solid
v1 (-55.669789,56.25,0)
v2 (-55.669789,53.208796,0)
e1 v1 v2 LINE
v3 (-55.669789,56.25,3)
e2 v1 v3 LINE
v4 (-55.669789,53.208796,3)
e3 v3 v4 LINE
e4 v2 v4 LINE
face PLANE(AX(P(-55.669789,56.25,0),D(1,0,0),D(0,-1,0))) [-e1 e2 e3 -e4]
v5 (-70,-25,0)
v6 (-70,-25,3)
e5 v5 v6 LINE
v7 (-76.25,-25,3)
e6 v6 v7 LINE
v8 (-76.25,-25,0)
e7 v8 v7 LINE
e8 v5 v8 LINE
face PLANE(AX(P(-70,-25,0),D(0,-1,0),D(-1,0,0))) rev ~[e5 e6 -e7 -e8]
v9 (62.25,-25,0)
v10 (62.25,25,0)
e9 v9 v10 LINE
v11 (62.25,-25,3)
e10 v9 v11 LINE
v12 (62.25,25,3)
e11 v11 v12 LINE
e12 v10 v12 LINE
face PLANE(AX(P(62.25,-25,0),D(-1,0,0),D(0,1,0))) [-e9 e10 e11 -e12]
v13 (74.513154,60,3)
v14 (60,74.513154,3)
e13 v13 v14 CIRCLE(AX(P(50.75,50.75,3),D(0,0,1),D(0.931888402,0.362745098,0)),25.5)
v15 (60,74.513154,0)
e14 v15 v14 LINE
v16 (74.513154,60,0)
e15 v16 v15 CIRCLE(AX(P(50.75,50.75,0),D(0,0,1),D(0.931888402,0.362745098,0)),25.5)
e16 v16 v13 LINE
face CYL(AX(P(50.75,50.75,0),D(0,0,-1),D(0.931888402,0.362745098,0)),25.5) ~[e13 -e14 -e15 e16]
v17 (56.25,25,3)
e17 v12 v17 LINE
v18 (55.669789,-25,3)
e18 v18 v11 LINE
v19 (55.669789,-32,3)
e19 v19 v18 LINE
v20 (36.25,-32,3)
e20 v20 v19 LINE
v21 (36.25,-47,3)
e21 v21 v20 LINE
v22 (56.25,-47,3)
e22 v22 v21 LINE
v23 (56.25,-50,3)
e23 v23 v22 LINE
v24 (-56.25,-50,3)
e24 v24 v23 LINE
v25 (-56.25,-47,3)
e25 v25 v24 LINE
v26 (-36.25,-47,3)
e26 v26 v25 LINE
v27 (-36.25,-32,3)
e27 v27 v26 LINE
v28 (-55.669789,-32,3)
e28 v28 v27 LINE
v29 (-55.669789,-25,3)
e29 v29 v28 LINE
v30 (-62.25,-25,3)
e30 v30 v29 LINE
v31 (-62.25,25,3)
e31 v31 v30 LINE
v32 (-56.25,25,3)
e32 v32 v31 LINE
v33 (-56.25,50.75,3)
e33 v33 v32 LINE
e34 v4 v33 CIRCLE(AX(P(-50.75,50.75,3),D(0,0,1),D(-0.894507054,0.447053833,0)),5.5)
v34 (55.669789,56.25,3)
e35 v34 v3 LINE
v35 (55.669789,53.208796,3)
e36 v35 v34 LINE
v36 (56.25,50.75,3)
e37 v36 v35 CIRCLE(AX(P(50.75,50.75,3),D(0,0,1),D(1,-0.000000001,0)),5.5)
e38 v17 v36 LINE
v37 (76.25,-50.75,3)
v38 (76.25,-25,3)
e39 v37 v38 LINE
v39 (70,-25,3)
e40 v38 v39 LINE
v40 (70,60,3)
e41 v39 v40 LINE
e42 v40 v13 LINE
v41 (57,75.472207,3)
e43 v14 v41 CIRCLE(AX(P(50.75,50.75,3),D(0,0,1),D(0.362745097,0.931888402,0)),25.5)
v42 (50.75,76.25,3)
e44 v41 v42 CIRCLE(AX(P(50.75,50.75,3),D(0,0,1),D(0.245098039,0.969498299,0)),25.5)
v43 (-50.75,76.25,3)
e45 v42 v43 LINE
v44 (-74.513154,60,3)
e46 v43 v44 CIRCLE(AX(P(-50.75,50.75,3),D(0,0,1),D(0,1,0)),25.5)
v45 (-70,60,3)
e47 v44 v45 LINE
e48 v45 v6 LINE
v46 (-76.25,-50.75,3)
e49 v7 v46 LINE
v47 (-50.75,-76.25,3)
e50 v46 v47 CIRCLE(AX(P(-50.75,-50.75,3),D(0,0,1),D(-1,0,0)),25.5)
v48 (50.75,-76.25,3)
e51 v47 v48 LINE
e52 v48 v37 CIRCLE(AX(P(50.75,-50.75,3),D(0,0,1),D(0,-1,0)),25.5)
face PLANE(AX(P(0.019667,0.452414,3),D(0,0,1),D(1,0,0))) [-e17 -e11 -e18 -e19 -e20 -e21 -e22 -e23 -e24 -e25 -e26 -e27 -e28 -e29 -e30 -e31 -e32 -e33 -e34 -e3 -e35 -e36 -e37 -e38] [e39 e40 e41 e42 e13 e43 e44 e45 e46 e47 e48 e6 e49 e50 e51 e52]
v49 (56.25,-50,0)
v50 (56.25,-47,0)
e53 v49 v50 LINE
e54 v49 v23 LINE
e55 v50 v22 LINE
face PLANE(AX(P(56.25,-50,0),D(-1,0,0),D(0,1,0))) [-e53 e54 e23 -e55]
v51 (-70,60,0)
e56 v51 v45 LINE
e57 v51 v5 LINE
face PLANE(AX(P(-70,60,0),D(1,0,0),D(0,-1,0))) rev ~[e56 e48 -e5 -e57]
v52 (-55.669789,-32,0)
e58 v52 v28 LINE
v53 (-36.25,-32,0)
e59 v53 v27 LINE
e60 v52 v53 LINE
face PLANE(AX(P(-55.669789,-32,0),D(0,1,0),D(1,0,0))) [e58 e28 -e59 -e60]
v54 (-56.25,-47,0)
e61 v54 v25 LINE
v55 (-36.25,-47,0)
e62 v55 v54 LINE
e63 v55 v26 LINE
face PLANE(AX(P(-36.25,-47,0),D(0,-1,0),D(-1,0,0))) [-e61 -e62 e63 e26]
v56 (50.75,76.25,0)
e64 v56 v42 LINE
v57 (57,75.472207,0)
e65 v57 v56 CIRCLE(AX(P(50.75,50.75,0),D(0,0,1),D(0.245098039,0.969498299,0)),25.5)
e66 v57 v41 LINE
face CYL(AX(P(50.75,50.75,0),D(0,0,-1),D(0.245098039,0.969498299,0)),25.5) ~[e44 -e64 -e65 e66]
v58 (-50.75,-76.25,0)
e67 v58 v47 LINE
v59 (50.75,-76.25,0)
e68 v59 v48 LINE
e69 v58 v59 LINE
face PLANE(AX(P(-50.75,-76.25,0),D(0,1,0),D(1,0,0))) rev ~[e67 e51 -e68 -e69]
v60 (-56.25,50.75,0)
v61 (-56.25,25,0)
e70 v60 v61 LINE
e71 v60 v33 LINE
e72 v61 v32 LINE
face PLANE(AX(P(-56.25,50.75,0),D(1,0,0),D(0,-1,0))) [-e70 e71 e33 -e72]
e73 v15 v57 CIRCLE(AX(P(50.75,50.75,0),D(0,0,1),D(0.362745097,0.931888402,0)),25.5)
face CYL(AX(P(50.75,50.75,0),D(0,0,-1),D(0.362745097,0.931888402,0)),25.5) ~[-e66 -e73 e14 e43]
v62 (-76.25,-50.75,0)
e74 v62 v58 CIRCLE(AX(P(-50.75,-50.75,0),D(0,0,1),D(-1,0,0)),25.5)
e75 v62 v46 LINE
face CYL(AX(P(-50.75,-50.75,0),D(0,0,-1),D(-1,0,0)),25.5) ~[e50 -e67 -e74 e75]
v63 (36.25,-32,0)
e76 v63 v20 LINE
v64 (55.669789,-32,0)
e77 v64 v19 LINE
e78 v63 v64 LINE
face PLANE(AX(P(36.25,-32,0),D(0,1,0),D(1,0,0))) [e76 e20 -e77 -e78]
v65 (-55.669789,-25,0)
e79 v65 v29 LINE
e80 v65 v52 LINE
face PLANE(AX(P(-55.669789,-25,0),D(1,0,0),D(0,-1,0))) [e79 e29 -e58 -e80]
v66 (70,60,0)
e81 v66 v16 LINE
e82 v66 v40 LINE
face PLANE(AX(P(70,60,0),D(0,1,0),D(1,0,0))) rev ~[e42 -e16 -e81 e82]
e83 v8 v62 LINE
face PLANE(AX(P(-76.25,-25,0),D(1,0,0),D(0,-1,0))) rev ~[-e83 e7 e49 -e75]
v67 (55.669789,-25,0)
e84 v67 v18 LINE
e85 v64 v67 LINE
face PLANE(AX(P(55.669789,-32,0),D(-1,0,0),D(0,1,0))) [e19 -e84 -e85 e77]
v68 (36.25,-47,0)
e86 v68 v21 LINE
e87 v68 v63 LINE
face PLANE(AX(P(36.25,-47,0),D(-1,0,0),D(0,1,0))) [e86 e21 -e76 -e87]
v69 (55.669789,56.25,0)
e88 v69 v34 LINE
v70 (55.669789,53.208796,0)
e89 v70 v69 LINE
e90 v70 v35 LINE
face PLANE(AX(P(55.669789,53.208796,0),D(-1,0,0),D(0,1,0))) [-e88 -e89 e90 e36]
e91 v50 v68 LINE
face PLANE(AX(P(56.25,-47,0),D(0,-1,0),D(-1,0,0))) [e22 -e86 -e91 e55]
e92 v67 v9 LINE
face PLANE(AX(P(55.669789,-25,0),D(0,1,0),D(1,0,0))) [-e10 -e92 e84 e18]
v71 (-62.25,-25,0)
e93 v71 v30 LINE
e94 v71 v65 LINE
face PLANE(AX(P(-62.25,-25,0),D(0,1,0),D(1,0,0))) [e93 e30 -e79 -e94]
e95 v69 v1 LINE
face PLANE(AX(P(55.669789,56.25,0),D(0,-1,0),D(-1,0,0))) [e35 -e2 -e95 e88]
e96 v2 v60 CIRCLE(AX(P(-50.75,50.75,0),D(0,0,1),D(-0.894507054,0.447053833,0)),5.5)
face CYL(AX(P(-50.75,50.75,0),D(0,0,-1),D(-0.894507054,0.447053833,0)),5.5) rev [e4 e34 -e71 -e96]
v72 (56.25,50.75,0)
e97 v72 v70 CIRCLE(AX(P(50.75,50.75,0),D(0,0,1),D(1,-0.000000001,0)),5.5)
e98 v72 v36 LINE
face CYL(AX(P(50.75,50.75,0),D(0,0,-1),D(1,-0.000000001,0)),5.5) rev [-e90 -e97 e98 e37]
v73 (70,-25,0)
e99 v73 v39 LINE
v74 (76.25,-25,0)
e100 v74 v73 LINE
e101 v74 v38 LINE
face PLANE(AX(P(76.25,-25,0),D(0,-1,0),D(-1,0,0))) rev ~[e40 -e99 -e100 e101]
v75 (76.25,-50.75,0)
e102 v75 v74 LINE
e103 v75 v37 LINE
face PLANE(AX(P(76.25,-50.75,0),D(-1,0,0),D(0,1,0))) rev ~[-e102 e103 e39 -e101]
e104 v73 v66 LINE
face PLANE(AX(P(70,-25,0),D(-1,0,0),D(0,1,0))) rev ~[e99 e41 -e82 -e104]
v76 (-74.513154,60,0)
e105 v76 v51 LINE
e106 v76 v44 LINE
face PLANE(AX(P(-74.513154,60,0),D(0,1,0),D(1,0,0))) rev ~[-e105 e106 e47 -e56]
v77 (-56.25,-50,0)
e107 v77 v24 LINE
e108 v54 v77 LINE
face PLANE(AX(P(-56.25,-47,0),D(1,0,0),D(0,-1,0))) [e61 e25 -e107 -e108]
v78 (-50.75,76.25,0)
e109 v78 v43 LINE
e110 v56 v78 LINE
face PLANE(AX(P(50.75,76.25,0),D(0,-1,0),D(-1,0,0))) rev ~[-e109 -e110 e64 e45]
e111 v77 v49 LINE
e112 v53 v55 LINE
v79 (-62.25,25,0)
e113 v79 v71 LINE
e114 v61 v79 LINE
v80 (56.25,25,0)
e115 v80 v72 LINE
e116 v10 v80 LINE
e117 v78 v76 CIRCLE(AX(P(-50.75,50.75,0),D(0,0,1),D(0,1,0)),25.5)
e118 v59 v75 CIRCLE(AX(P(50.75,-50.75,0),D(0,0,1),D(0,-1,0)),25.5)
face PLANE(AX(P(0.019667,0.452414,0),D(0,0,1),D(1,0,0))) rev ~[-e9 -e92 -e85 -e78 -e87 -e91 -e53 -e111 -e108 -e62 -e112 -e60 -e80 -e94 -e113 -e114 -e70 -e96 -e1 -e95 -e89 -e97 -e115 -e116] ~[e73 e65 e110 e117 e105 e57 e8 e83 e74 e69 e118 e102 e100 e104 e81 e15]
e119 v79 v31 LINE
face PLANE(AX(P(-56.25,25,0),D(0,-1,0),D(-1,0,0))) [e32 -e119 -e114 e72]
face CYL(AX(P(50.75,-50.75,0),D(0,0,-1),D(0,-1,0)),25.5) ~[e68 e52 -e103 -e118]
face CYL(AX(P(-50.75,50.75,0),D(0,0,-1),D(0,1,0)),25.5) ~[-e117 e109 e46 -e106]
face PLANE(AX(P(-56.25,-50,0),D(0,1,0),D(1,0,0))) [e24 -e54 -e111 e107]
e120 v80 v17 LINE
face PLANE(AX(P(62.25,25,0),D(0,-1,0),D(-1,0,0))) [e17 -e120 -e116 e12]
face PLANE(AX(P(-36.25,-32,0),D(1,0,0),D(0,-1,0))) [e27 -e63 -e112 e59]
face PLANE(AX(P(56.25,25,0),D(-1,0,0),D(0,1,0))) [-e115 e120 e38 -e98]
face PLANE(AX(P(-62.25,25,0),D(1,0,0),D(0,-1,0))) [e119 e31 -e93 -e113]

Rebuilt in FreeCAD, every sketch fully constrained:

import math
import FreeCAD as App
import Part
import Sketcher
from FreeCAD import Vector

doc = App.newDocument("Part")
params = doc.addObject("Spreadsheet::Sheet", "Params")
for row, (alias, value) in enumerate([
    ("sketch1_radius", "25.5 mm"),
    ("sketch1_radius2", "5.5 mm"),
    ("sketch1_width", "20 mm"),
    ("sketch1_width2", "6 mm"),
    ("sketch1_height", "85 mm"),
    ("pad1_length", "3 mm"),
], start=1):
    params.set(f"A{row}", alias)
    params.set(f"B{row}", "=" + value)
    params.setAlias(f"B{row}", alias)

body = doc.addObject("PartDesign::Body", "Body")

# Sketch on XY plane
sketch1 = doc.addObject("Sketcher::SketchObject", "Sketch")
body.addObject(sketch1)
sketch1.AttachmentSupport = (doc.XY_Plane, [""])
sketch1.MapMode = "FlatFace"
sketch1.addGeometry([
    Part.LineSegment(Vector(76.2, -25, 0), Vector(70, -25, 0)),  # 0
    Part.LineSegment(Vector(70, -25, 0), Vector(70, 60, 0)),  # 1
    Part.LineSegment(Vector(70, 60, 0), Vector(74.5, 60, 0)),  # 2
    Part.ArcOfCircle(Part.Circle(Vector(50.7, 50.7, 0), Vector(0, 0, 1), 25.5), math.radians(21), math.radians(69)),  # 3
    Part.ArcOfCircle(Part.Circle(Vector(50.7, 50.7, 0), Vector(0, 0, 1), 25.5), math.radians(68.73), math.radians(75.81)),  # 4
    Part.ArcOfCircle(Part.Circle(Vector(50.7, 50.7, 0), Vector(0, 0, 1), 25.5), math.radians(75.81), math.radians(90)),  # 5
    Part.LineSegment(Vector(50.8, 76.2, 0), Vector(-50.8, 76.2, 0)),  # 6
    Part.ArcOfCircle(Part.Circle(Vector(-50.8, 50.7, 0), Vector(0, 0, 1), 25.5), math.radians(90), math.radians(159)),  # 7
    Part.LineSegment(Vector(-74.5, 60, 0), Vector(-70, 60, 0)),  # 8
    Part.LineSegment(Vector(-70, 60, 0), Vector(-70, -25, 0)),  # 9
    Part.LineSegment(Vector(-70, -25, 0), Vector(-76.2, -25, 0)),  # 10
    Part.LineSegment(Vector(-76.2, -25, 0), Vector(-76.2, -50.8, 0)),  # 11
    Part.ArcOfCircle(Part.Circle(Vector(-50.7, -50.7, 0), Vector(0, 0, 1), 25.5), math.radians(-180), math.radians(-90)),  # 12
    Part.LineSegment(Vector(-50.8, -76.2, 0), Vector(50.8, -76.2, 0)),  # 13
    Part.ArcOfCircle(Part.Circle(Vector(50.7, -50.7, 0), Vector(0, 0, 1), 25.5), math.radians(-90), math.radians(0)),  # 14
    Part.LineSegment(Vector(76.2, -50.8, 0), Vector(76.2, -25, 0)),  # 15
    Part.LineSegment(Vector(56.2, -47, 0), Vector(56.2, -50, 0)),  # 16
    Part.LineSegment(Vector(56.2, -50, 0), Vector(-56.2, -50, 0)),  # 17
    Part.LineSegment(Vector(-56.2, -50, 0), Vector(-56.2, -47, 0)),  # 18
    Part.LineSegment(Vector(-56.2, -47, 0), Vector(-36.2, -47, 0)),  # 19
    Part.LineSegment(Vector(-36.2, -47, 0), Vector(-36.2, -32, 0)),  # 20
    Part.LineSegment(Vector(-36.2, -32, 0), Vector(-55.7, -32, 0)),  # 21
    Part.LineSegment(Vector(-55.7, -32, 0), Vector(-55.7, -25, 0)),  # 22
    Part.LineSegment(Vector(-55.7, -25, 0), Vector(-62.2, -25, 0)),  # 23
    Part.LineSegment(Vector(-62.2, -25, 0), Vector(-62.2, 25, 0)),  # 24
    Part.LineSegment(Vector(-62.2, 25, 0), Vector(-56.2, 25, 0)),  # 25
    Part.LineSegment(Vector(-56.2, 25, 0), Vector(-56.2, 50.8, 0)),  # 26
    Part.ArcOfCircle(Part.Circle(Vector(-50.7, 50.7, 0), Vector(0, 0, 1), 5.5), math.radians(153), math.radians(180)),  # 27
    Part.LineSegment(Vector(-55.7, 53.2, 0), Vector(-55.7, 56.2, 0)),  # 28
    Part.LineSegment(Vector(-55.7, 56.2, 0), Vector(55.7, 56.2, 0)),  # 29
    Part.LineSegment(Vector(55.7, 56.2, 0), Vector(55.7, 53.2, 0)),  # 30
    Part.ArcOfCircle(Part.Circle(Vector(50.8, 50.8, 0), Vector(0, 0, 1), 5.5), math.radians(0), math.radians(27)),  # 31
    Part.LineSegment(Vector(56.2, 50.8, 0), Vector(56.2, 25, 0)),  # 32
    Part.LineSegment(Vector(56.2, 25, 0), Vector(62.2, 25, 0)),  # 33
    Part.LineSegment(Vector(62.2, 25, 0), Vector(62.2, -25, 0)),  # 34
    Part.LineSegment(Vector(62.2, -25, 0), Vector(55.7, -25, 0)),  # 35
    Part.LineSegment(Vector(55.7, -25, 0), Vector(55.7, -32, 0)),  # 36
    Part.LineSegment(Vector(55.7, -32, 0), Vector(36.2, -32, 0)),  # 37
    Part.LineSegment(Vector(36.2, -32, 0), Vector(36.2, -47, 0)),  # 38
    Part.LineSegment(Vector(36.2, -47, 0), Vector(56.2, -47, 0)),  # 39
], False)
sketch1.addConstraint([
    Sketcher.Constraint("Coincident", 0, 2, 1, 1),
    Sketcher.Constraint("Coincident", 1, 2, 2, 1),
    Sketcher.Constraint("Coincident", 2, 2, 3, 1),
    Sketcher.Constraint("Tangent", 3, 2, 4, 1),
    Sketcher.Constraint("Tangent", 4, 2, 5, 1),
    Sketcher.Constraint("Tangent", 5, 2, 6, 1),
    Sketcher.Constraint("Tangent", 6, 2, 7, 1),
    Sketcher.Constraint("Coincident", 7, 2, 8, 1),
    Sketcher.Constraint("Coincident", 8, 2, 9, 1),
    Sketcher.Constraint("Coincident", 9, 2, 10, 1),
    Sketcher.Constraint("Coincident", 10, 2, 11, 1),
    Sketcher.Constraint("Tangent", 11, 2, 12, 1),
    Sketcher.Constraint("Tangent", 12, 2, 13, 1),
    Sketcher.Constraint("Tangent", 13, 2, 14, 1),
    Sketcher.Constraint("Tangent", 14, 2, 15, 1),
    Sketcher.Constraint("Coincident", 15, 2, 0, 1),
    Sketcher.Constraint("Coincident", 16, 2, 17, 1),
    Sketcher.Constraint("Coincident", 17, 2, 18, 1),
    Sketcher.Constraint("Coincident", 18, 2, 19, 1),
    Sketcher.Constraint("Coincident", 19, 2, 20, 1),
    Sketcher.Constraint("Coincident", 20, 2, 21, 1),
    Sketcher.Constraint("Coincident", 21, 2, 22, 1),
    Sketcher.Constraint("Coincident", 22, 2, 23, 1),
    Sketcher.Constraint("Coincident", 23, 2, 24, 1),
    Sketcher.Constraint("Coincident", 24, 2, 25, 1),
    Sketcher.Constraint("Coincident", 25, 2, 26, 1),
    Sketcher.Constraint("Tangent", 26, 2, 27, 2),
    Sketcher.Constraint("Coincident", 27, 1, 28, 1),
    Sketcher.Constraint("Coincident", 28, 2, 29, 1),
    Sketcher.Constraint("Coincident", 29, 2, 30, 1),
    Sketcher.Constraint("Coincident", 30, 2, 31, 2),
    Sketcher.Constraint("Tangent", 31, 1, 32, 1),
    Sketcher.Constraint("Coincident", 32, 2, 33, 1),
    Sketcher.Constraint("Coincident", 33, 2, 34, 1),
    Sketcher.Constraint("Coincident", 34, 2, 35, 1),
    Sketcher.Constraint("Coincident", 35, 2, 36, 1),
    Sketcher.Constraint("Coincident", 36, 2, 37, 1),
    Sketcher.Constraint("Coincident", 37, 2, 38, 1),
    Sketcher.Constraint("Coincident", 38, 2, 39, 1),
    Sketcher.Constraint("Coincident", 39, 2, 16, 1),
    Sketcher.Constraint("Horizontal", 0),
    Sketcher.Constraint("Vertical", 1),
    Sketcher.Constraint("Horizontal", 2),
    Sketcher.Constraint("Horizontal", 6),
    Sketcher.Constraint("Horizontal", 8),
    Sketcher.Constraint("Vertical", 9),
    Sketcher.Constraint("Horizontal", 10),
    Sketcher.Constraint("Vertical", 11),
    Sketcher.Constraint("Horizontal", 13),
    Sketcher.Constraint("Vertical", 15),
    Sketcher.Constraint("Vertical", 16),
    Sketcher.Constraint("Horizontal", 17),
    Sketcher.Constraint("Vertical", 18),
    Sketcher.Constraint("Horizontal", 19),
    Sketcher.Constraint("Vertical", 20),
    Sketcher.Constraint("Horizontal", 21),
    Sketcher.Constraint("Vertical", 22),
    Sketcher.Constraint("Horizontal", 23),
    Sketcher.Constraint("Vertical", 24),
    Sketcher.Constraint("Horizontal", 25),
    Sketcher.Constraint("Vertical", 26),
    Sketcher.Constraint("Vertical", 28),
    Sketcher.Constraint("Horizontal", 29),
    Sketcher.Constraint("Vertical", 30),
    Sketcher.Constraint("Vertical", 32),
    Sketcher.Constraint("Horizontal", 33),
    Sketcher.Constraint("Vertical", 34),
    Sketcher.Constraint("Horizontal", 35),
    Sketcher.Constraint("Vertical", 36),
    Sketcher.Constraint("Horizontal", 37),
    Sketcher.Constraint("Vertical", 38),
    Sketcher.Constraint("Horizontal", 39),
    Sketcher.Constraint("Coincident", 5, 3, 3, 3),
    Sketcher.Constraint("Coincident", 27, 3, 7, 3),
    Sketcher.Constraint("Coincident", 31, 3, 3, 3),
    Sketcher.Constraint("Equal", 5, 7),
    Sketcher.Constraint("Equal", 7, 12),
    Sketcher.Constraint("Equal", 12, 14),
    Sketcher.Constraint("Equal", 27, 31),
    Sketcher.Constraint("Symmetric", 3, 3, 12, 3, -1, 1),
    Sketcher.Constraint("Symmetric", 23, 2, 33, 2, -1, 1),
    Sketcher.Constraint("Symmetric", 2, 2, 7, 2, -2),
    Sketcher.Constraint("Symmetric", 0, 2, 9, 2, -2),
    Sketcher.Constraint("Symmetric", 22, 2, 35, 2, -2),
    Sketcher.Constraint("Symmetric", 20, 2, 37, 2, -2),
    Sketcher.Constraint("Symmetric", 18, 2, 39, 2, -2),
    Sketcher.Constraint("Horizontal", 15, 2, 22, 2),
    Sketcher.Constraint("Horizontal", 27, 1, 30, 2),
    Sketcher.Constraint("Horizontal", 25, 2, 32, 2),
    Sketcher.Constraint("Vertical", 5, 3, 14, 3),
    Sketcher.Constraint("Vertical", 18, 2, 25, 2),
    Sketcher.Constraint("Vertical", 22, 2, 27, 1),
    Sketcher.Constraint("Radius", 3, 25.5),
    Sketcher.Constraint("Radius", 27, 5.5),
    Sketcher.Constraint("DistanceX", 19, 1, 19, 2, 20.0),
    Sketcher.Constraint("DistanceX", 25, 1, 25, 2, 6.0),
    Sketcher.Constraint("DistanceY", 1, 1, 1, 2, 85.0),
    Sketcher.Constraint("DistanceY", 16, 2, 16, 1, 3.0),
    Sketcher.Constraint("DistanceY", 20, 1, 20, 2, 15.0),
    Sketcher.Constraint("DistanceY", 22, 1, 22, 2, 7.0),
    Sketcher.Constraint("DistanceY", 24, 1, 24, 2, 50.0),
    Sketcher.Constraint("DistanceX", 6, 2, 6, 1, 101.5),
    Sketcher.Constraint("DistanceX", -1, 1, 0, 2, 70.0),
    Sketcher.Constraint("DistanceX", -1, 1, 3, 2, 60.0),
    Sketcher.Constraint("DistanceX", -1, 1, 4, 2, 57.0),
    Sketcher.Constraint("DistanceY", 13, 2, 4, 3, 127.0),
    Sketcher.Constraint("DistanceY", 26, 2, 28, 2, 5.5),
    Sketcher.Constraint("DistanceX", 21, 2, 21, 1, 19.419789),
])
sketch1.setExpression("Constraints[92]", "Params.sketch1_radius")
sketch1.setExpression("Constraints[93]", "Params.sketch1_radius2")
sketch1.setExpression("Constraints[94]", "Params.sketch1_width")
sketch1.setExpression("Constraints[95]", "Params.sketch1_width2")
sketch1.setExpression("Constraints[96]", "Params.sketch1_height")
pad1 = doc.addObject("PartDesign::Pad", "Pad")
body.addObject(pad1)
pad1.Profile = sketch1
pad1.setExpression("Length", "Params.pad1_length")

doc.recompute()
